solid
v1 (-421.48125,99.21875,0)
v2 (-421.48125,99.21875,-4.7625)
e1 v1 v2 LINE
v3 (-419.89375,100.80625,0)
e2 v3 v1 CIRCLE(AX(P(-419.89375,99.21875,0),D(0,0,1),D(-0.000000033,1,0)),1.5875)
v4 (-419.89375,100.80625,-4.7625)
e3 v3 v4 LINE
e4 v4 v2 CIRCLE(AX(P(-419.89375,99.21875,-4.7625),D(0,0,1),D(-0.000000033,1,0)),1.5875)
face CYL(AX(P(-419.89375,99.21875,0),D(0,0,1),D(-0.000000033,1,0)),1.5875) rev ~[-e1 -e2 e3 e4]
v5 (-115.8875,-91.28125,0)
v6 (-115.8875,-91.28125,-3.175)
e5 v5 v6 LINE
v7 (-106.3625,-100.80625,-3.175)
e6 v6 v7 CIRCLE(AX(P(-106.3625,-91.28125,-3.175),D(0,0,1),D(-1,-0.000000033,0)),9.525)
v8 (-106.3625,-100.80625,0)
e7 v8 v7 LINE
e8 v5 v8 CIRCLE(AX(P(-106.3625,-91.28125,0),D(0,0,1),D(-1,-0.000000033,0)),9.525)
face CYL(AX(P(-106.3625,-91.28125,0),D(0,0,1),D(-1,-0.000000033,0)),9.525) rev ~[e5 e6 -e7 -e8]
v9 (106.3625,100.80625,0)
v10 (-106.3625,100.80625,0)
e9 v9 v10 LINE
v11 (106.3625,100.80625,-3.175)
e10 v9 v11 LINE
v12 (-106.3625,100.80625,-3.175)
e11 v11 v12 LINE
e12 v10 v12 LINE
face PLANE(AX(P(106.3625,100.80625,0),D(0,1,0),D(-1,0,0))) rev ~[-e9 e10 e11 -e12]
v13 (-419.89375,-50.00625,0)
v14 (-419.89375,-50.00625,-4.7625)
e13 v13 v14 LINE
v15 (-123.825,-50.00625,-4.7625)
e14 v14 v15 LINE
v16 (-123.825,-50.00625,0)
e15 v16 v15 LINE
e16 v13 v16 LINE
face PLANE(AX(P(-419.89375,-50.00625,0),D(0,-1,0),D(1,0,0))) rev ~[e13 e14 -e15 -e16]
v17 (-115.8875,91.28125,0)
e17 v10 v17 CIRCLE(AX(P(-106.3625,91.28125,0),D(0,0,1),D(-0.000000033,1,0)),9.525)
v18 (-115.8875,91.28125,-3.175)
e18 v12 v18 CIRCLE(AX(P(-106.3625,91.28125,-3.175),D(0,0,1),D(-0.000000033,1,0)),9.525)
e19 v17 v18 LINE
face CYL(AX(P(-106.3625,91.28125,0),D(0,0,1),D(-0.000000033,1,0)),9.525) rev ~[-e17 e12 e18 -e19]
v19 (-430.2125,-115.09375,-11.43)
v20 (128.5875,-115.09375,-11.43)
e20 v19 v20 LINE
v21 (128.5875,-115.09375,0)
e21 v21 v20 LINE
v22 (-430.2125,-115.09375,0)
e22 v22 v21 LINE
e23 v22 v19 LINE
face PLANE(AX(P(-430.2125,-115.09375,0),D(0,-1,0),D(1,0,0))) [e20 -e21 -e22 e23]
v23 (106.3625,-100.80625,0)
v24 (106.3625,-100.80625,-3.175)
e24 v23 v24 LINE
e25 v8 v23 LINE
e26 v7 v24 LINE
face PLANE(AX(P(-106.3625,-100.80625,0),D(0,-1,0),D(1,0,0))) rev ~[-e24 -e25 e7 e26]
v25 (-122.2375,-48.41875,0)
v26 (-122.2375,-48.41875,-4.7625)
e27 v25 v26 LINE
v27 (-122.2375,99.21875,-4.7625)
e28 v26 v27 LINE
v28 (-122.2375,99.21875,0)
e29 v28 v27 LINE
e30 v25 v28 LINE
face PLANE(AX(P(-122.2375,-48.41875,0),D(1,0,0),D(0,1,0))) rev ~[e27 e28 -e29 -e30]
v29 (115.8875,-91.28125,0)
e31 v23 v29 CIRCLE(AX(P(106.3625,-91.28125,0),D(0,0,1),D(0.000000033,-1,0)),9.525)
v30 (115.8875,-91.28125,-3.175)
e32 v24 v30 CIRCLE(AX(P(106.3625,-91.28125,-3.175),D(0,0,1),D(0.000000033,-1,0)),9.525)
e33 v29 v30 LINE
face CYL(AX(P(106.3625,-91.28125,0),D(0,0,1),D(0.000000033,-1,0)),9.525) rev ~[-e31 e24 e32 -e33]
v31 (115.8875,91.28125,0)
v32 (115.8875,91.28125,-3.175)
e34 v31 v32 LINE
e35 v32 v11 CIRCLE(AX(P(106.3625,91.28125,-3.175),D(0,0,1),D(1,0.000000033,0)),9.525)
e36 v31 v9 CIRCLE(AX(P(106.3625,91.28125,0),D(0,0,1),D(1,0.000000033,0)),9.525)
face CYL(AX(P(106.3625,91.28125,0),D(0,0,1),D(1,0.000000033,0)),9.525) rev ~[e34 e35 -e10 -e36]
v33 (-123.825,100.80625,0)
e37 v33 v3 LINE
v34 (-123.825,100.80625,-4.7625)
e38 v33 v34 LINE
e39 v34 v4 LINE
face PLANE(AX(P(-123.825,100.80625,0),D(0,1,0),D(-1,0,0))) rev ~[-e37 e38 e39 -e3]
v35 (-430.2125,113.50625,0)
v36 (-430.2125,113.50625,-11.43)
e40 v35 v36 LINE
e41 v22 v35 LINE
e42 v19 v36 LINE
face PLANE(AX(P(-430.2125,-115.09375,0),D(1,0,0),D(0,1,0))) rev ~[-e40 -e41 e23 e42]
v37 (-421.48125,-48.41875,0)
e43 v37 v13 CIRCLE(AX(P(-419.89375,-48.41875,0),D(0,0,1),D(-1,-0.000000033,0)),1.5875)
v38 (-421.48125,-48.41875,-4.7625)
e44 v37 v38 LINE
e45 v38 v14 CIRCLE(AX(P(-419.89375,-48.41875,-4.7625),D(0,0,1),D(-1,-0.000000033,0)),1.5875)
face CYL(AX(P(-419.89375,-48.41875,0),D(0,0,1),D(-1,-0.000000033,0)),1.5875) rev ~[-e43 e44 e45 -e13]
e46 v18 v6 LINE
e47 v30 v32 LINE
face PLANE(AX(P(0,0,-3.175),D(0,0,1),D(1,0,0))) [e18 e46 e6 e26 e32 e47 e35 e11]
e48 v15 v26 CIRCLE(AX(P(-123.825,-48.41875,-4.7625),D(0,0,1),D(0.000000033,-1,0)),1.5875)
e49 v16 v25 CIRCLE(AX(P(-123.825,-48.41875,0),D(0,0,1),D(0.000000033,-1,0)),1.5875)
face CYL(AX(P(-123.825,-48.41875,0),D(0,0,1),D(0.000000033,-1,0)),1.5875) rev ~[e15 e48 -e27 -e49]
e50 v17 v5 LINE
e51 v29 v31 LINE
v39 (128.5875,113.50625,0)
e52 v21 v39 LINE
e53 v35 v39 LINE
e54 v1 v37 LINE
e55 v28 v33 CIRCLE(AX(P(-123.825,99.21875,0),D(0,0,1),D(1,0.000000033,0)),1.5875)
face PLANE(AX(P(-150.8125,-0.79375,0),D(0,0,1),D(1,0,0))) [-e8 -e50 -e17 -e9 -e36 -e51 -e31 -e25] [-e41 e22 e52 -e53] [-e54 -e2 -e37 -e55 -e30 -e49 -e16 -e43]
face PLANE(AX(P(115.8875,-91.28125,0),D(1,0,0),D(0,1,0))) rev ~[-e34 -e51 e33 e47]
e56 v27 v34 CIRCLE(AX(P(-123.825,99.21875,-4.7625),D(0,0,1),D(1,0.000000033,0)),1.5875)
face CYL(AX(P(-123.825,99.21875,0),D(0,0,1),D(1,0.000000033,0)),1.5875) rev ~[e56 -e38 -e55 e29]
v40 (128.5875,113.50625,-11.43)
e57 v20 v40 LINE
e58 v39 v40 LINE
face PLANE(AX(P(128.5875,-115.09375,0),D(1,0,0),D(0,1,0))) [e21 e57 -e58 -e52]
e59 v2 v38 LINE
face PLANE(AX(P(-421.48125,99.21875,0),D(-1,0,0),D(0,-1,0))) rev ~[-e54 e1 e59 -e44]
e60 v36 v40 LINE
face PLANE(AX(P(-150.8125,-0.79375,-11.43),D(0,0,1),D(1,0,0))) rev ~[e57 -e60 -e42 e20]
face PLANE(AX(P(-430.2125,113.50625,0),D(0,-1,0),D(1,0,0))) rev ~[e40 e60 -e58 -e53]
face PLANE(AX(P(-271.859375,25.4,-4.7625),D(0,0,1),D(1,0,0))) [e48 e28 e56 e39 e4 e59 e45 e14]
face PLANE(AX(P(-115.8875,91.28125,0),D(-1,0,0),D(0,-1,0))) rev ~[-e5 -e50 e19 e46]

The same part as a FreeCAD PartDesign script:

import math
import FreeCAD as App
import Part
import Sketcher

V = App.Vector
Q = App.Units.Quantity


def add_polygon(sketch, points):
    """Adds a closed chain of lines whose ends are joined by coincident constraints."""
    first, n = sketch.GeometryCount, len(points)
    for a, b in zip(points, points[1:] + points[:1]):
        sketch.addGeometry(Part.LineSegment(App.Vector(*a, 0), App.Vector(*b, 0)), False)
    for i in range(n):
        sketch.addConstraint(Sketcher.Constraint("Coincident", first + i, 2, first + (i + 1) % n, 1))

doc = App.newDocument("Part")
body = doc.addObject("PartDesign::Body", "Body")

sketch1 = body.newObject("Sketcher::SketchObject", "Sketch")
sketch1.AttachmentSupport = (doc.getObject("XY_Plane"), [""])
sketch1.MapMode = "FlatFace"
add_polygon(sketch1, [(-430.2125, 113.50625), (-430.2125, -115.09375), (128.5875, -115.09375), (128.5875, 113.50625)])
sketch1.addConstraint(Sketcher.Constraint("Vertical", 0))
sketch1.addConstraint(Sketcher.Constraint("Horizontal", 1))
sketch1.addConstraint(Sketcher.Constraint("Vertical", 2))
sketch1.addConstraint(Sketcher.Constraint("Horizontal", 3))
sketch1.addConstraint(Sketcher.Constraint("DistanceX", 1, 1, 1, 2, Q("22 in")))
sketch1.addConstraint(Sketcher.Constraint("DistanceY", 0, 2, 0, 1, Q("9 in")))
sketch1.addConstraint(Sketcher.Constraint("DistanceX", 0, 2, -1, 1, Q("16.9375 in")))
sketch1.addConstraint(Sketcher.Constraint("DistanceY", 0, 2, -1, 1, Q("4.53125 in")))
pad1 = body.newObject("PartDesign::Pad", "Pad")
pad1.Profile = sketch1
pad1.Length = Q("0.45 in")
pad1.Reversed = True

sketch2 = body.newObject("Sketcher::SketchObject", "Sketch001")
sketch2.AttachmentSupport = (doc.getObject("XY_Plane"), [""])
sketch2.MapMode = "FlatFace"
sketch2.addGeometry(Part.LineSegment(V(-123.825, 100.80625, 0), V(-419.89375, 100.80625, 0)), False)
sketch2.addGeometry(Part.ArcOfCircle(Part.Circle(V(-419.89375, 99.21875, 0), V(0, 0, 1), 1.5875), math.radians(90.000002), math.radians(179.999998)), False)
sketch2.addGeometry(Part.LineSegment(V(-421.48125, 99.21875, 0), V(-421.48125, -48.41875, 0)), False)
sketch2.addGeometry(Part.ArcOfCircle(Part.Circle(V(-419.89375, -48.41875, 0), V(0, 0, 1), 1.5875), math.radians(-179.999998), math.radians(-90.000002)), False)
sketch2.addGeometry(Part.LineSegment(V(-419.89375, -50.00625, 0), V(-123.825, -50.00625, 0)), False)
sketch2.addGeometry(Part.ArcOfCircle(Part.Circle(V(-123.825, -48.41875, 0), V(0, 0, 1), 1.5875), math.radians(-89.999998), math.radians(-0.000002)), False)
sketch2.addGeometry(Part.LineSegment(V(-122.2375, -48.41875, 0), V(-122.2375, 99.21875, 0)), False)
sketch2.addGeometry(Part.ArcOfCircle(Part.Circle(V(-123.825, 99.21875, 0), V(0, 0, 1), 1.5875), math.radians(0.000002), math.radians(89.999998)), False)
sketch2.addConstraint(Sketcher.Constraint("Tangent", 0, 2, 1, 1))
sketch2.addConstraint(Sketcher.Constraint("Tangent", 1, 2, 2, 1))
sketch2.addConstraint(Sketcher.Constraint("Tangent", 2, 2, 3, 1))
sketch2.addConstraint(Sketcher.Constraint("Tangent", 3, 2, 4, 1))
sketch2.addConstraint(Sketcher.Constraint("Tangent", 4, 2, 5, 1))
sketch2.addConstraint(Sketcher.Constraint("Tangent", 5, 2, 6, 1))
sketch2.addConstraint(Sketcher.Constraint("Tangent", 6, 2, 7, 1))
sketch2.addConstraint(Sketcher.Constraint("Tangent", 7, 2, 0, 1))
sketch2.addConstraint(Sketcher.Constraint("Horizontal", 0))
sketch2.addConstraint(Sketcher.Constraint("Vertical", 2))
sketch2.addConstraint(Sketcher.Constraint("Horizontal", 4))
sketch2.addConstraint(Sketcher.Constraint("Vertical", 6))
sketch2.addConstraint(Sketcher.Constraint("Equal", 1, 3))
sketch2.addConstraint(Sketcher.Constraint("Equal", 3, 5))
sketch2.addConstraint(Sketcher.Constraint("Equal", 5, 7))
sketch2.addConstraint(Sketcher.Constraint("Radius", 1, Q("0.0625 in")))
sketch2.addConstraint(Sketcher.Constraint("DistanceX", 0, 2, 0, 1, Q("11.65625 in")))
sketch2.addConstraint(Sketcher.Constraint("DistanceY", 2, 2, 2, 1, Q("5.8125 in")))
sketch2.addConstraint(Sketcher.Constraint("DistanceX", 1, 3, -1, 1, Q("16.53125 in")))
sketch2.addConstraint(Sketcher.Constraint("DistanceY", -1, 1, 1, 3, Q("3.90625 in")))
pocket1 = body.newObject("PartDesign::Pocket", "Pocket")
pocket1.Profile = sketch2
pocket1.Length = Q("0.1875 in")

sketch3 = body.newObject("Sketcher::SketchObject", "Sketch002")
sketch3.AttachmentSupport = (doc.getObject("XY_Plane"), [""])
sketch3.MapMode = "FlatFace"
sketch3.addGeometry(Part.ArcOfCircle(Part.Circle(V(106.3625, 91.28125, 0), V(0, 0, 1), 9.525), math.radians(0.000002), math.radians(89.999998)), False)
sketch3.addGeometry(Part.LineSegment(V(106.3625, 100.80625, 0), V(-106.3625, 100.80625, 0)), False)
sketch3.addGeometry(Part.ArcOfCircle(Part.Circle(V(-106.3625, 91.28125, 0), V(0, 0, 1), 9.525), math.radians(90.000002), math.radians(179.999998)), False)
sketch3.addGeometry(Part.LineSegment(V(-115.8875, 91.28125, 0), V(-115.8875, -91.28125, 0)), False)
sketch3.addGeometry(Part.ArcOfCircle(Part.Circle(V(-106.3625, -91.28125, 0), V(0, 0, 1), 9.525), math.radians(-179.999998), math.radians(-90.000002)), False)
sketch3.addGeometry(Part.LineSegment(V(-106.3625, -100.80625, 0), V(106.3625, -100.80625, 0)), False)
sketch3.addGeometry(Part.ArcOfCircle(Part.Circle(V(106.3625, -91.28125, 0), V(0, 0, 1), 9.525), math.radians(-89.999998), math.radians(-0.000002)), False)
sketch3.addGeometry(Part.LineSegment(V(115.8875, -91.28125, 0), V(115.8875, 91.28125, 0)), False)
sketch3.addConstraint(Sketcher.Constraint("Tangent", 0, 2, 1, 1))
sketch3.addConstraint(Sketcher.Constraint("Tangent", 1, 2, 2, 1))
sketch3.addConstraint(Sketcher.Constraint("Tangent", 2, 2, 3, 1))
sketch3.addConstraint(Sketcher.Constraint("Tangent", 3, 2, 4, 1))
sketch3.addConstraint(Sketcher.Constraint("Tangent", 4, 2, 5, 1))
sketch3.addConstraint(Sketcher.Constraint("Tangent", 5, 2, 6, 1))
sketch3.addConstraint(Sketcher.Constraint("Tangent", 6, 2, 7, 1))
sketch3.addConstraint(Sketcher.Constraint("Tangent", 7, 2, 0, 1))
sketch3.addConstraint(Sketcher.Constraint("Horizontal", 1))
sketch3.addConstraint(Sketcher.Constraint("Vertical", 3))
sketch3.addConstraint(Sketcher.Constraint("Horizontal", 5))
sketch3.addConstraint(Sketcher.Constraint("Vertical", 7))
sketch3.addConstraint(Sketcher.Constraint("Equal", 0, 2))
sketch3.addConstraint(Sketcher.Constraint("Equal", 2, 4))
sketch3.addConstraint(Sketcher.Constraint("Equal", 4, 6))
sketch3.addConstraint(Sketcher.Constraint("Symmetric", 0, 3, 4, 3, -1, 1))
sketch3.addConstraint(Sketcher.Constraint("Radius", 0, Q("0.375 in")))
sketch3.addConstraint(Sketcher.Constraint("DistanceX", 1, 2, 1, 1, Q("8.375 in")))
sketch3.addConstraint(Sketcher.Constraint("DistanceY", 3, 2, 3, 1, Q("7.1875 in")))
pocket2 = body.newObject("PartDesign::Pocket", "Pocket001")
pocket2.Profile = sketch3
pocket2.Length = Q("0.125 in")

doc.recompute()
